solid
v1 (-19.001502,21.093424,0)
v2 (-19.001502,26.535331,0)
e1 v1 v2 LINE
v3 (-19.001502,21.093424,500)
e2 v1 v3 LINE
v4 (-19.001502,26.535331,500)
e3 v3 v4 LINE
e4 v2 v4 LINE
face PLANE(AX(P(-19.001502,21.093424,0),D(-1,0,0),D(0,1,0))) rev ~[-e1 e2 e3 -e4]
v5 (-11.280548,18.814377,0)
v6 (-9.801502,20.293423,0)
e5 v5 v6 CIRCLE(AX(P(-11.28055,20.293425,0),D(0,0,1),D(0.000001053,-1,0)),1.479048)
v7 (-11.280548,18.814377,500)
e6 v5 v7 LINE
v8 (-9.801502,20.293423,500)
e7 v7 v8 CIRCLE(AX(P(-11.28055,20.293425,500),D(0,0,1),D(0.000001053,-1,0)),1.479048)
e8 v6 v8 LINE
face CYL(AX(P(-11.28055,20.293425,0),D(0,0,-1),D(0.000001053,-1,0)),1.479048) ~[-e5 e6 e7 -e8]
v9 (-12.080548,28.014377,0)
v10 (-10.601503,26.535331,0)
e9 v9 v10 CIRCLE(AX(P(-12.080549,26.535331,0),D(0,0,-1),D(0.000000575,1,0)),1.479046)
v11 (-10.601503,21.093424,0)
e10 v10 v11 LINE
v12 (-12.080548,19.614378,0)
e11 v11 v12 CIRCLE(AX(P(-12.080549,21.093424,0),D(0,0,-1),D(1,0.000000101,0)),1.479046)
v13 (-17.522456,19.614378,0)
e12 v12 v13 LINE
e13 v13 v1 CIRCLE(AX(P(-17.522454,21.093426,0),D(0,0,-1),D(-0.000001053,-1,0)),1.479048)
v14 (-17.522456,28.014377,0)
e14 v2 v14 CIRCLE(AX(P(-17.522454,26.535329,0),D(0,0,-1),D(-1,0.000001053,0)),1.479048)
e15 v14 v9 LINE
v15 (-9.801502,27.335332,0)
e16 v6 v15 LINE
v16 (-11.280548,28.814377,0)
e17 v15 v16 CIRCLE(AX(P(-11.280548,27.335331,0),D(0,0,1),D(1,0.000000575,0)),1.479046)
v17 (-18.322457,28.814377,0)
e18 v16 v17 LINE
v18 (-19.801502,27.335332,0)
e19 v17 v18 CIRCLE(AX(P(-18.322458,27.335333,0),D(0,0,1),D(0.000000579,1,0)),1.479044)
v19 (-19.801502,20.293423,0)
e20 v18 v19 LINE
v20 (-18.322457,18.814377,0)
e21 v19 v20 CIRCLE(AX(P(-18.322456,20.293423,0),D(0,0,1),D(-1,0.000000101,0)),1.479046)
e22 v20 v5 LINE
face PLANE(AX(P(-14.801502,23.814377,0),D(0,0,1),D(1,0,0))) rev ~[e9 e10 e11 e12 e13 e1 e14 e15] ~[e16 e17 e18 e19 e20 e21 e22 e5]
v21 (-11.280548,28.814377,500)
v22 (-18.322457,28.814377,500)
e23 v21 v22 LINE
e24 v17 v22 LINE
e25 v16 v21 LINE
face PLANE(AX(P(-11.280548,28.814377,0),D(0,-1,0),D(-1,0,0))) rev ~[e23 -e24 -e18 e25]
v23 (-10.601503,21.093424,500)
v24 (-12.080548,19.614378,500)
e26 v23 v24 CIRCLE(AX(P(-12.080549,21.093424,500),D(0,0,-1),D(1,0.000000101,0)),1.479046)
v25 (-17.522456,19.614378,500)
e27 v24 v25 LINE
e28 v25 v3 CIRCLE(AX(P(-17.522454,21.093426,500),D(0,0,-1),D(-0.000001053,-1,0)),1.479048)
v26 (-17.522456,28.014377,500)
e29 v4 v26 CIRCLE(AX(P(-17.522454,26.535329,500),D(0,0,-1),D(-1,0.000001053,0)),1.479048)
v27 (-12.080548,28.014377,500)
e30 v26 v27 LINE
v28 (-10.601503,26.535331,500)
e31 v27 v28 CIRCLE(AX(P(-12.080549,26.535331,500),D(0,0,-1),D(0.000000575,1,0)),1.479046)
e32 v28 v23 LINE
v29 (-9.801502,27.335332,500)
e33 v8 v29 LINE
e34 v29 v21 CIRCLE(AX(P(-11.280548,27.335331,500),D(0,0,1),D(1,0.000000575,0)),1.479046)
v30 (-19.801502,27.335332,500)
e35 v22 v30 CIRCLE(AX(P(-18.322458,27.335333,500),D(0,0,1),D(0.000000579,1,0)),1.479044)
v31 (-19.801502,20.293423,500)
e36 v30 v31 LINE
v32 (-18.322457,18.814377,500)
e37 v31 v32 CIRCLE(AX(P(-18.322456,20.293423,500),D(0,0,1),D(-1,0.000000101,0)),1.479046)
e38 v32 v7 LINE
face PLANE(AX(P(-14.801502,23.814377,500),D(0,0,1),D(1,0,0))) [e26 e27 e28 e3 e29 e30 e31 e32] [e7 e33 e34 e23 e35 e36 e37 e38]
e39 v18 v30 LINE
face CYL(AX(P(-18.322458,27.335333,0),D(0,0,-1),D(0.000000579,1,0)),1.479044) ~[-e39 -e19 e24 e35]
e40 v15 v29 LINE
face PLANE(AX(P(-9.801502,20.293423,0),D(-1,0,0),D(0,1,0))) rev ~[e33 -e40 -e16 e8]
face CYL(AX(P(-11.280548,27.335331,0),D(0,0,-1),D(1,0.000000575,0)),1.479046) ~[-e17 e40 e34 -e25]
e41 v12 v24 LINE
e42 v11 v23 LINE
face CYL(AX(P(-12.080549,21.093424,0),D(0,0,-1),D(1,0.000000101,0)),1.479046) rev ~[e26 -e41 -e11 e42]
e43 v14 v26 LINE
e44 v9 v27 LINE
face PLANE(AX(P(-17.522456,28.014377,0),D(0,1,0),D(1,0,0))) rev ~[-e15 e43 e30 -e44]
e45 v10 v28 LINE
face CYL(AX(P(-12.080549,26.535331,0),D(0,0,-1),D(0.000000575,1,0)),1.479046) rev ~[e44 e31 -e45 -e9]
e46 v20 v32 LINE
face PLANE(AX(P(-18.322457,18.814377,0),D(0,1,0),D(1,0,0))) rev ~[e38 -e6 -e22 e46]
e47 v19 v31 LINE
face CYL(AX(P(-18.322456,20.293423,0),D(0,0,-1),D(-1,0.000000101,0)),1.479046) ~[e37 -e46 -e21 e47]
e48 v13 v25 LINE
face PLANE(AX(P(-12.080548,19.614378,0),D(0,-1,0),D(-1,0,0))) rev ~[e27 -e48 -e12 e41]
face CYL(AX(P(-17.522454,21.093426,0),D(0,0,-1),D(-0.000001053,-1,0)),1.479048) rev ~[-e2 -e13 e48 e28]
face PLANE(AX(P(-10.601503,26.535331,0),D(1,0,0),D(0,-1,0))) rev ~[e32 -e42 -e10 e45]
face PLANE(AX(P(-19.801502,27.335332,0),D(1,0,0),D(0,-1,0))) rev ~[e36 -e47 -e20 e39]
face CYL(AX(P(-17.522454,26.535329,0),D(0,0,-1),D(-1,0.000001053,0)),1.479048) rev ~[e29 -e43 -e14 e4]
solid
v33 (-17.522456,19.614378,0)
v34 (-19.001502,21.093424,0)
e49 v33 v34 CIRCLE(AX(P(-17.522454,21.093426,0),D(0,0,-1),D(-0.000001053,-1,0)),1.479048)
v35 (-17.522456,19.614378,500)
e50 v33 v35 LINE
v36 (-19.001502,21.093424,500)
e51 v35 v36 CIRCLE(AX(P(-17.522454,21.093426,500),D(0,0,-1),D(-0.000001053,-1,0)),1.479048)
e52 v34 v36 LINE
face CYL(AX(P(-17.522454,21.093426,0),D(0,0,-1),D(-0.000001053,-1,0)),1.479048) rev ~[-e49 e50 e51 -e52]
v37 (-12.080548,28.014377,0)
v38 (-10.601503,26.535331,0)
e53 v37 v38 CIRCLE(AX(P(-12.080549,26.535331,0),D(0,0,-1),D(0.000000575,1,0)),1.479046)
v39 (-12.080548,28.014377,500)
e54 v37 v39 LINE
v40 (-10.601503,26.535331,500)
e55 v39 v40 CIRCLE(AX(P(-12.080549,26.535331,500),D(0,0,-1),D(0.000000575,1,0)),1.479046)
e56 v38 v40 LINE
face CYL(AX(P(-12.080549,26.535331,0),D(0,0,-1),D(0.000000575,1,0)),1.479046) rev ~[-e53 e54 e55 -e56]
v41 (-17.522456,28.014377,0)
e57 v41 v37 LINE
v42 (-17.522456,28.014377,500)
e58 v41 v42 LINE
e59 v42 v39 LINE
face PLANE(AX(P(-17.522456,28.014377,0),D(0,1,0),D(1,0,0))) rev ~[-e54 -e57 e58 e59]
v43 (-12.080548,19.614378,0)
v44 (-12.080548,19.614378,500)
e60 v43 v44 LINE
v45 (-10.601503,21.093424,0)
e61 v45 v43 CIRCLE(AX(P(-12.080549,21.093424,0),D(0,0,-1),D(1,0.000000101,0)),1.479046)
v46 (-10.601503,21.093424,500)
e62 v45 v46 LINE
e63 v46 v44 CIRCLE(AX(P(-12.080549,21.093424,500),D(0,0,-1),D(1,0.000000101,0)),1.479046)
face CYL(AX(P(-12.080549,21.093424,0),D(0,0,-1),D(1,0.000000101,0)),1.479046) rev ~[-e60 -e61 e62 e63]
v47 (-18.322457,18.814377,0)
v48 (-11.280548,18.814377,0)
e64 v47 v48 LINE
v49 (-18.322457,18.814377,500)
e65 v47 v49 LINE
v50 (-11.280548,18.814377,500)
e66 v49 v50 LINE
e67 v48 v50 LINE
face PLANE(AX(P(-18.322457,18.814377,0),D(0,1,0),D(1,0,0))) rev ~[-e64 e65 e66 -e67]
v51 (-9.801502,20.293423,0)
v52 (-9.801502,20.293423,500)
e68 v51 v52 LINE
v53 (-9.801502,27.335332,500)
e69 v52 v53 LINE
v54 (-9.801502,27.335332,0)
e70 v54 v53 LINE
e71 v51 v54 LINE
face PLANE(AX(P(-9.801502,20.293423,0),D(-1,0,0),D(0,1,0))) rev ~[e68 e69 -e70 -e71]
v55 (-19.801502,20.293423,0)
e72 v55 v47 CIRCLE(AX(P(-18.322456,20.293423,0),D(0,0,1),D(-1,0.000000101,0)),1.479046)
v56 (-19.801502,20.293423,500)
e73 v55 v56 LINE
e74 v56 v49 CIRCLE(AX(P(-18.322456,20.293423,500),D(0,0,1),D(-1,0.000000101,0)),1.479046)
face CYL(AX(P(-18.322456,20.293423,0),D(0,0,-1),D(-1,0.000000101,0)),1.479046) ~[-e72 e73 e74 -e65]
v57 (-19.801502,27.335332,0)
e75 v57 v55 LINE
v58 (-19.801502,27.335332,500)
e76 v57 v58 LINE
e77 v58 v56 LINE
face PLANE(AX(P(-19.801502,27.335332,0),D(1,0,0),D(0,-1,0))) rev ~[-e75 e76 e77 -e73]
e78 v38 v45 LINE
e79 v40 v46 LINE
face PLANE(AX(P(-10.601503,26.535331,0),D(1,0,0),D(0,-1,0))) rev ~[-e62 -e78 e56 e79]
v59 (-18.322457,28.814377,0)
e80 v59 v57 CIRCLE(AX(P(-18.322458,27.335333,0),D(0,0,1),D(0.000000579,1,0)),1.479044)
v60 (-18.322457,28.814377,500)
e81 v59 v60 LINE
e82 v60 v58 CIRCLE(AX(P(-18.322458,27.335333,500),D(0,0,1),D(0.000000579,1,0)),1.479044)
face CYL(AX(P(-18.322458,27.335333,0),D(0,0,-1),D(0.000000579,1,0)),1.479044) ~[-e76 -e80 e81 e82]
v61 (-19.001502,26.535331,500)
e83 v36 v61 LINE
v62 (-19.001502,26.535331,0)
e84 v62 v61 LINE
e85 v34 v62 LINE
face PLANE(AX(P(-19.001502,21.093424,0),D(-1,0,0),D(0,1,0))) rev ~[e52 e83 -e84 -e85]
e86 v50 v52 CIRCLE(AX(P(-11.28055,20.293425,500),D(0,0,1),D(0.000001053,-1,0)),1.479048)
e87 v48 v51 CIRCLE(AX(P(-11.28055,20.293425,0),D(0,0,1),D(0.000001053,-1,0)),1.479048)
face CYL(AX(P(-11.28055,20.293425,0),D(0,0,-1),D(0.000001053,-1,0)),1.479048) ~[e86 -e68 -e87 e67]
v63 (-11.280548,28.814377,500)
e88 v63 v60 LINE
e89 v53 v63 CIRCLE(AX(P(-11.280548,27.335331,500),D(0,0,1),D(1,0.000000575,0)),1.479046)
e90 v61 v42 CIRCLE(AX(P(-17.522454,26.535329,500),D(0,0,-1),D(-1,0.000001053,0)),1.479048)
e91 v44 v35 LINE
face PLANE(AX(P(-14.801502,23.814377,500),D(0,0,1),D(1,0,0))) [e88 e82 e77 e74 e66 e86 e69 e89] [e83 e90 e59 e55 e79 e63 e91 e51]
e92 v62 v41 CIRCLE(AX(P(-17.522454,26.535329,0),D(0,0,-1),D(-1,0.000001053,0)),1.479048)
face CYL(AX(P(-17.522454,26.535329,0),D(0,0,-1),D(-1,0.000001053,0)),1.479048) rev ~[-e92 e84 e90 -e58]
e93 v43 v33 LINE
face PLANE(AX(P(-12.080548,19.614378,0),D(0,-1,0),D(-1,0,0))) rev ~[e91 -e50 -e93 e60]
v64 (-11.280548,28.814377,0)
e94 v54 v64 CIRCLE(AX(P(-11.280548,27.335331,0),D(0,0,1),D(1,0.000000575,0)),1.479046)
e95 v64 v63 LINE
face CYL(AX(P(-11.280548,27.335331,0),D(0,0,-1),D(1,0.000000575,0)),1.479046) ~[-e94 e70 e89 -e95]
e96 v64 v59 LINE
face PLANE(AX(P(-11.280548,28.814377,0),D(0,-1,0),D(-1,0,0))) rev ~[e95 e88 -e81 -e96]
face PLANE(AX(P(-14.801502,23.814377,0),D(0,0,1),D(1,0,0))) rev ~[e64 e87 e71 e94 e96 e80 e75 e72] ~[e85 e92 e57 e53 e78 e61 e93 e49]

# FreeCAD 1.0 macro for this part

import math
import FreeCAD as App
import Part
import Sketcher
Q = App.Units.Quantity

doc = App.newDocument("Part")
body = doc.addObject("PartDesign::Body", "Body")

# Sketch on XY plane
sketch1 = body.newObject("Sketcher::SketchObject", "Sketch")
sketch1.AttachmentSupport = (doc.getObject("XY_Plane"), [""])
sketch1.MapMode = "FlatFace"
sketch1.addGeometry(Part.LineSegment(App.Vector(-11.280548, 28.814377, 0), App.Vector(-18.322457, 28.814377, 0)), False)
sketch1.addGeometry(Part.ArcOfCircle(Part.Circle(App.Vector(-18.322458, 27.335333, 0), App.Vector(0, 0, 1), 1.479044), math.radians(89.999967), math.radians(180.000033)), False)
sketch1.addGeometry(Part.LineSegment(App.Vector(-19.801502, 27.335332, 0), App.Vector(-19.801502, 20.293423, 0)), False)
sketch1.addGeometry(Part.ArcOfCircle(Part.Circle(App.Vector(-18.322456, 20.293423, 0), App.Vector(0, 0, 1), 1.479046), math.radians(179.999994), math.radians(269.999967)), False)
sketch1.addGeometry(Part.LineSegment(App.Vector(-18.322457, 18.814377, 0), App.Vector(-11.280548, 18.814377, 0)), False)
sketch1.addGeometry(Part.ArcOfCircle(Part.Circle(App.Vector(-11.28055, 20.293425, 0), App.Vector(0, 0, 1), 1.479048), math.radians(-89.99994), math.radians(-0.00006)), False)
sketch1.addGeometry(Part.LineSegment(App.Vector(-9.801502, 20.293423, 0), App.Vector(-9.801502, 27.335332, 0)), False)
sketch1.addGeometry(Part.ArcOfCircle(Part.Circle(App.Vector(-11.280548, 27.335331, 0), App.Vector(0, 0, 1), 1.479046), math.radians(0.000033), math.radians(90.000006)), False)
sketch1.addGeometry(Part.LineSegment(App.Vector(-19.001502, 21.093424, 0), App.Vector(-19.001502, 26.535331, 0)), False)
sketch1.addGeometry(Part.ArcOfCircle(Part.Circle(App.Vector(-17.522454, 26.535329, 0), App.Vector(0, 0, 1), 1.479048), math.radians(90.00006), math.radians(179.99994)), False)
sketch1.addGeometry(Part.LineSegment(App.Vector(-17.522456, 28.014377, 0), App.Vector(-12.080548, 28.014377, 0)), False)
sketch1.addGeometry(Part.ArcOfCircle(Part.Circle(App.Vector(-12.080549, 26.535331, 0), App.Vector(0, 0, 1), 1.479046), math.radians(-0.000006), math.radians(89.999967)), False)
sketch1.addGeometry(Part.LineSegment(App.Vector(-10.601503, 26.535331, 0), App.Vector(-10.601503, 21.093424, 0)), False)
sketch1.addGeometry(Part.ArcOfCircle(Part.Circle(App.Vector(-12.080549, 21.093424, 0), App.Vector(0, 0, 1), 1.479046), math.radians(-89.999967), math.radians(0.000006)), False)
sketch1.addGeometry(Part.LineSegment(App.Vector(-12.080548, 19.614378, 0), App.Vector(-17.522456, 19.614378, 0)), False)
sketch1.addGeometry(Part.ArcOfCircle(Part.Circle(App.Vector(-17.522454, 21.093426, 0), App.Vector(0, 0, 1), 1.479048), math.radians(-179.99994), math.radians(-90.00006)), False)
sketch1.addConstraint(Sketcher.Constraint("Tangent", 0, 2, 1, 1))
sketch1.addConstraint(Sketcher.Constraint("Tangent", 1, 2, 2, 1))
sketch1.addConstraint(Sketcher.Constraint("Tangent", 2, 2, 3, 1))
sketch1.addConstraint(Sketcher.Constraint("Tangent", 3, 2, 4, 1))
sketch1.addConstraint(Sketcher.Constraint("Tangent", 4, 2, 5, 1))
sketch1.addConstraint(Sketcher.Constraint("Tangent", 5, 2, 6, 1))
sketch1.addConstraint(Sketcher.Constraint("Tangent", 6, 2, 7, 1))
sketch1.addConstraint(Sketcher.Constraint("Tangent", 7, 2, 0, 1))
sketch1.addConstraint(Sketcher.Constraint("Tangent", 8, 2, 9, 2))
sketch1.addConstraint(Sketcher.Constraint("Tangent", 9, 1, 10, 1))
sketch1.addConstraint(Sketcher.Constraint("Tangent", 10, 2, 11, 2))
sketch1.addConstraint(Sketcher.Constraint("Tangent", 11, 1, 12, 1))
sketch1.addConstraint(Sketcher.Constraint("Tangent", 12, 2, 13, 2))
sketch1.addConstraint(Sketcher.Constraint("Tangent", 13, 1, 14, 1))
sketch1.addConstraint(Sketcher.Constraint("Tangent", 14, 2, 15, 2))
sketch1.addConstraint(Sketcher.Constraint("Tangent", 15, 1, 8, 1))
sketch1.addConstraint(Sketcher.Constraint("Horizontal", 0))
sketch1.addConstraint(Sketcher.Constraint("Vertical", 2))
sketch1.addConstraint(Sketcher.Constraint("Horizontal", 4))
sketch1.addConstraint(Sketcher.Constraint("Vertical", 6))
sketch1.addConstraint(Sketcher.Constraint("Vertical", 8))
sketch1.addConstraint(Sketcher.Constraint("Horizontal", 10))
sketch1.addConstraint(Sketcher.Constraint("Vertical", 12))
sketch1.addConstraint(Sketcher.Constraint("Horizontal", 14))
sketch1.addConstraint(Sketcher.Constraint("Equal", 1, 3))
sketch1.addConstraint(Sketcher.Constraint("Equal", 3, 5))
sketch1.addConstraint(Sketcher.Constraint("Equal", 5, 7))
sketch1.addConstraint(Sketcher.Constraint("Equal", 7, 9))
sketch1.addConstraint(Sketcher.Constraint("Equal", 9, 11))
sketch1.addConstraint(Sketcher.Constraint("Equal", 11, 13))
sketch1.addConstraint(Sketcher.Constraint("Equal", 13, 15))
sketch1.addConstraint(Sketcher.Constraint("Equal", 4, 2))
sketch1.addConstraint(Sketcher.Constraint("Equal", 14, 8))
sketch1.addConstraint(Sketcher.Constraint("DistanceX", 3, 3, 9, 3, Q("0.800002 mm")))
sketch1.addConstraint(Sketcher.Constraint("DistanceY", 9, 3, 7, 3, Q("0.800002 mm")))
sketch1.addConstraint(Sketcher.Constraint("DistanceX", 11, 3, 7, 3, Q("0.800001 mm")))
sketch1.addConstraint(Sketcher.Constraint("Radius", 1, Q("1.479044 mm")))
sketch1.addConstraint(Sketcher.Constraint("DistanceX", 0, 2, 0, 1, Q("7.041909 mm")))
sketch1.addConstraint(Sketcher.Constraint("DistanceX", 1, 2, -1, 1, Q("19.801502 mm")))
sketch1.addConstraint(Sketcher.Constraint("DistanceY", -1, 1, 7, 3, Q("27.335331 mm")))
pad1 = body.newObject("PartDesign::Pad", "Pad")
pad1.Profile = sketch1
pad1.Length = 500
body2 = doc.addObject("PartDesign::Body", "Body001")

# Sketch on XY plane
sketch2 = body2.newObject("Sketcher::SketchObject", "Sketch001")
sketch2.AttachmentSupport = (doc.getObject("XY_Plane001"), [""])
sketch2.MapMode = "FlatFace"
sketch2.addGeometry(Part.LineSegment(App.Vector(-11.280548, 28.814377, 0), App.Vector(-18.322457, 28.814377, 0)), False)
sketch2.addGeometry(Part.ArcOfCircle(Part.Circle(App.Vector(-18.322458, 27.335333, 0), App.Vector(0, 0, 1), 1.479044), math.radians(89.999967), math.radians(180.000033)), False)
sketch2.addGeometry(Part.LineSegment(App.Vector(-19.801502, 27.335332, 0), App.Vector(-19.801502, 20.293423, 0)), False)
sketch2.addGeometry(Part.ArcOfCircle(Part.Circle(App.Vector(-18.322456, 20.293423, 0), App.Vector(0, 0, 1), 1.479046), math.radians(179.999994), math.radians(269.999967)), False)
sketch2.addGeometry(Part.LineSegment(App.Vector(-18.322457, 18.814377, 0), App.Vector(-11.280548, 18.814377, 0)), False)
sketch2.addGeometry(Part.ArcOfCircle(Part.Circle(App.Vector(-11.28055, 20.293425, 0), App.Vector(0, 0, 1), 1.479048), math.radians(-89.99994), math.radians(-0.00006)), False)
sketch2.addGeometry(Part.LineSegment(App.Vector(-9.801502, 20.293423, 0), App.Vector(-9.801502, 27.335332, 0)), False)
sketch2.addGeometry(Part.ArcOfCircle(Part.Circle(App.Vector(-11.280548, 27.335331, 0), App.Vector(0, 0, 1), 1.479046), math.radians(0.000033), math.radians(90.000006)), False)
sketch2.addGeometry(Part.LineSegment(App.Vector(-19.001502, 21.093424, 0), App.Vector(-19.001502, 26.535331, 0)), False)
sketch2.addGeometry(Part.ArcOfCircle(Part.Circle(App.Vector(-17.522454, 26.535329, 0), App.Vector(0, 0, 1), 1.479048), math.radians(90.00006), math.radians(179.99994)), False)
sketch2.addGeometry(Part.LineSegment(App.Vector(-17.522456, 28.014377, 0), App.Vector(-12.080548, 28.014377, 0)), False)
sketch2.addGeometry(Part.ArcOfCircle(Part.Circle(App.Vector(-12.080549, 26.535331, 0), App.Vector(0, 0, 1), 1.479046), math.radians(-0.000006), math.radians(89.999967)), False)
sketch2.addGeometry(Part.LineSegment(App.Vector(-10.601503, 26.535331, 0), App.Vector(-10.601503, 21.093424, 0)), False)
sketch2.addGeometry(Part.ArcOfCircle(Part.Circle(App.Vector(-12.080549, 21.093424, 0), App.Vector(0, 0, 1), 1.479046), math.radians(-89.999967), math.radians(0.000006)), False)
sketch2.addGeometry(Part.LineSegment(App.Vector(-12.080548, 19.614378, 0), App.Vector(-17.522456, 19.614378, 0)), False)
sketch2.addGeometry(Part.ArcOfCircle(Part.Circle(App.Vector(-17.522454, 21.093426, 0), App.Vector(0, 0, 1), 1.479048), math.radians(-179.99994), math.radians(-90.00006)), False)
sketch2.addConstraint(Sketcher.Constraint("Tangent", 0, 2, 1, 1))
sketch2.addConstraint(Sketcher.Constraint("Tangent", 1, 2, 2, 1))
sketch2.addConstraint(Sketcher.Constraint("Tangent", 2, 2, 3, 1))
sketch2.addConstraint(Sketcher.Constraint("Tangent", 3, 2, 4, 1))
sketch2.addConstraint(Sketcher.Constraint("Tangent", 4, 2, 5, 1))
sketch2.addConstraint(Sketcher.Constraint("Tangent", 5, 2, 6, 1))
sketch2.addConstraint(Sketcher.Constraint("Tangent", 6, 2, 7, 1))
sketch2.addConstraint(Sketcher.Constraint("Tangent", 7, 2, 0, 1))
sketch2.addConstraint(Sketcher.Constraint("Tangent", 8, 2, 9, 2))
sketch2.addConstraint(Sketcher.Constraint("Tangent", 9, 1, 10, 1))
sketch2.addConstraint(Sketcher.Constraint("Tangent", 10, 2, 11, 2))
sketch2.addConstraint(Sketcher.Constraint("Tangent", 11, 1, 12, 1))
sketch2.addConstraint(Sketcher.Constraint("Tangent", 12, 2, 13, 2))
sketch2.addConstraint(Sketcher.Constraint("Tangent", 13, 1, 14, 1))
sketch2.addConstraint(Sketcher.Constraint("Tangent", 14, 2, 15, 2))
sketch2.addConstraint(Sketcher.Constraint("Tangent", 15, 1, 8, 1))
sketch2.addConstraint(Sketcher.Constraint("Horizontal", 0))
sketch2.addConstraint(Sketcher.Constraint("Vertical", 2))
sketch2.addConstraint(Sketcher.Constraint("Horizontal", 4))
sketch2.addConstraint(Sketcher.Constraint("Vertical", 6))
sketch2.addConstraint(Sketcher.Constraint("Vertical", 8))
sketch2.addConstraint(Sketcher.Constraint("Horizontal", 10))
sketch2.addConstraint(Sketcher.Constraint("Vertical", 12))
sketch2.addConstraint(Sketcher.Constraint("Horizontal", 14))
sketch2.addConstraint(Sketcher.Constraint("Equal", 1, 3))
sketch2.addConstraint(Sketcher.Constraint("Equal", 3, 5))
sketch2.addConstraint(Sketcher.Constraint("Equal", 5, 7))
sketch2.addConstraint(Sketcher.Constraint("Equal", 7, 9))
sketch2.addConstraint(Sketcher.Constraint("Equal", 9, 11))
sketch2.addConstraint(Sketcher.Constraint("Equal", 11, 13))
sketch2.addConstraint(Sketcher.Constraint("Equal", 13, 15))
sketch2.addConstraint(Sketcher.Constraint("Equal", 4, 2))
sketch2.addConstraint(Sketcher.Constraint("Equal", 14, 8))
sketch2.addConstraint(Sketcher.Constraint("DistanceX", 3, 3, 9, 3, Q("0.800002 mm")))
sketch2.addConstraint(Sketcher.Constraint("DistanceY", 9, 3, 7, 3, Q("0.800002 mm")))
sketch2.addConstraint(Sketcher.Constraint("DistanceX", 11, 3, 7, 3, Q("0.800001 mm")))
sketch2.addConstraint(Sketcher.Constraint("Radius", 1, Q("1.479044 mm")))
sketch2.addConstraint(Sketcher.Constraint("DistanceX", 0, 2, 0, 1, Q("7.041909 mm")))
sketch2.addConstraint(Sketcher.Constraint("DistanceX", 1, 2, -1, 1, Q("19.801502 mm")))
sketch2.addConstraint(Sketcher.Constraint("DistanceY", -1, 1, 7, 3, Q("27.335331 mm")))
pad2 = body2.newObject("PartDesign::Pad", "Pad001")
pad2.Profile = sketch2
pad2.Length = 500

doc.recompute()
